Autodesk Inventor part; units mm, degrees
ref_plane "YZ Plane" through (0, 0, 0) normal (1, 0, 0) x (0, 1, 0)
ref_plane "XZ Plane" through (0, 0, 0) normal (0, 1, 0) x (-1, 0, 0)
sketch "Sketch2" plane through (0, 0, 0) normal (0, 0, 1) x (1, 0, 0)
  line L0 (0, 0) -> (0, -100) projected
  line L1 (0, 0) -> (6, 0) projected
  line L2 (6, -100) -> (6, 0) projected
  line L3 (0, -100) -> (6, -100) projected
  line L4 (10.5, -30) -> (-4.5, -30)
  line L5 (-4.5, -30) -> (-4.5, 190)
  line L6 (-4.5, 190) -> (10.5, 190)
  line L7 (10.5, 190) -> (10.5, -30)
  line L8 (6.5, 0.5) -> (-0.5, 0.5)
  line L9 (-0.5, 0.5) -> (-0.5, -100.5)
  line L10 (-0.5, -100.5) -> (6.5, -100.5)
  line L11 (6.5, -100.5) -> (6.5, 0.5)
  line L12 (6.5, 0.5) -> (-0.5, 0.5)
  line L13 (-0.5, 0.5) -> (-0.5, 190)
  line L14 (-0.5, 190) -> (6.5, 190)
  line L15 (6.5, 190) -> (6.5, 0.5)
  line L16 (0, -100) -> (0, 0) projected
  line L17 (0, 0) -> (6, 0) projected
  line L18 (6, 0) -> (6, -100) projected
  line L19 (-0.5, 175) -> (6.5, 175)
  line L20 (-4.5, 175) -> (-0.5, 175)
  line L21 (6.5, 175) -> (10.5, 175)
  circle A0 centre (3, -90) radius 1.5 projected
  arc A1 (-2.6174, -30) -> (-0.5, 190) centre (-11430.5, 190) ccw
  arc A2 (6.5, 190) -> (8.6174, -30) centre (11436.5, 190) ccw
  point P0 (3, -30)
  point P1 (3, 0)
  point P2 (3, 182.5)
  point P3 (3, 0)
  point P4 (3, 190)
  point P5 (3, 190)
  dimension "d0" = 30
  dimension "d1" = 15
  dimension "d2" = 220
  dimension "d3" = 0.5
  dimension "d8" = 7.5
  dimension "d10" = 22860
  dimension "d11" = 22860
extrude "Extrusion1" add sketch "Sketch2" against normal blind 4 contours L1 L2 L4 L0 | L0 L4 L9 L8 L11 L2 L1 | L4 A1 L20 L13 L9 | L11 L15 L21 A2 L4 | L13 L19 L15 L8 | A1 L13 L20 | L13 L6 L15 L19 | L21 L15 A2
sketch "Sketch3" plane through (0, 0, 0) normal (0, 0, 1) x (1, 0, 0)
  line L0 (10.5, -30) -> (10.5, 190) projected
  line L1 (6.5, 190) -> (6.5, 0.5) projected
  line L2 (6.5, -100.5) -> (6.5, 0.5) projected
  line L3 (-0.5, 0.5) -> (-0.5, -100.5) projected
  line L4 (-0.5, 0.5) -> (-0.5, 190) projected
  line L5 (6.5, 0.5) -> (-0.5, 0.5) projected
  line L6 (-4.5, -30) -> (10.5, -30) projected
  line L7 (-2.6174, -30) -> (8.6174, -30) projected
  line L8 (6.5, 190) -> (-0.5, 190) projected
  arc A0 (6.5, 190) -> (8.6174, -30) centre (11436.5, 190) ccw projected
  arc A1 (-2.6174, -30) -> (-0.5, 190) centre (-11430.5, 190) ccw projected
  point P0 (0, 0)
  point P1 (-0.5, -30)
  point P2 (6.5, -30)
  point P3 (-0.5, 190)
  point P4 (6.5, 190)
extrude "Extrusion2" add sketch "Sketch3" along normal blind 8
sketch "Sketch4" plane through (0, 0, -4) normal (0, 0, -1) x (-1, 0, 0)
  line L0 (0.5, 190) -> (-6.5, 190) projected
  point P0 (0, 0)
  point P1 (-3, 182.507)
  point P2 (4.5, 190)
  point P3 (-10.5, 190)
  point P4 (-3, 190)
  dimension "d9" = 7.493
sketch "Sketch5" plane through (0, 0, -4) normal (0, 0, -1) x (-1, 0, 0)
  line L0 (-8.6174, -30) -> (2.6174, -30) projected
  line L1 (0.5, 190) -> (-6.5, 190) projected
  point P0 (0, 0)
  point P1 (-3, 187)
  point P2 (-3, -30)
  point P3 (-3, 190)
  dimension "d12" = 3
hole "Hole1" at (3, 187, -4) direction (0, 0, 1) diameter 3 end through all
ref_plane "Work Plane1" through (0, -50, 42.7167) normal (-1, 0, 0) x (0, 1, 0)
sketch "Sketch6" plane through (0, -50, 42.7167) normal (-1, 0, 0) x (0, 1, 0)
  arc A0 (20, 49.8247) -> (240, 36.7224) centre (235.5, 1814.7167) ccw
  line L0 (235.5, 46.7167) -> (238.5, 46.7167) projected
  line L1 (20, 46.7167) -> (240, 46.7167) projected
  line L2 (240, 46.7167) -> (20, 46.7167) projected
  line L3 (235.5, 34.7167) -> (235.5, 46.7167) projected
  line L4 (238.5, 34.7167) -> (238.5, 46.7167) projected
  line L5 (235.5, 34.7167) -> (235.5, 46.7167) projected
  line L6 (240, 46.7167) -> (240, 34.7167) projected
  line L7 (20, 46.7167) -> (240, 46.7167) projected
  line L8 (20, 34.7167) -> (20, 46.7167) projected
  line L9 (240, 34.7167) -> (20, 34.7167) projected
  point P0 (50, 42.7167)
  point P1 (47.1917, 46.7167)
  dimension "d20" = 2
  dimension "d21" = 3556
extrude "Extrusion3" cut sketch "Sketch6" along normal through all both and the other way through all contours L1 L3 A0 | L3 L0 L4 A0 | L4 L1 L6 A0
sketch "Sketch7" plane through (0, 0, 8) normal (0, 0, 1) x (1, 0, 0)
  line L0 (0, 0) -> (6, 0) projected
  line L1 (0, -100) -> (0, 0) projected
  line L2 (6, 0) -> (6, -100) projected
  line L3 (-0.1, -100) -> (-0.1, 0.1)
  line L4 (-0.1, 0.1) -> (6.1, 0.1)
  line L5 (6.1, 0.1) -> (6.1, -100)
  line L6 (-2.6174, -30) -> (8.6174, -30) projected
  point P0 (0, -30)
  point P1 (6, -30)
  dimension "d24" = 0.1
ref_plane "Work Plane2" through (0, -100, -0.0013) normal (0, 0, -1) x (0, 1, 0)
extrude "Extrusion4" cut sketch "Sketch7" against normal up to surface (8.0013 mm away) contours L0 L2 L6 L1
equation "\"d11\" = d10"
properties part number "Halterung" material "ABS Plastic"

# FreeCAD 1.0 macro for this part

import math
import FreeCAD as App
import Part
import Sketcher
from FreeCAD import Vector

doc = App.newDocument("Part")
body = doc.addObject("PartDesign::Body", "Body")

# Sketch on XY plane
sketch1 = body.newObject("Sketcher::SketchObject", "Sketch")
sketch1.AttachmentSupport = (doc.getObject("XY_Plane"), [""])
sketch1.MapMode = "FlatFace"
sketch1.addGeometry([
    Part.ArcOfCircle(Part.Circle(Vector(11436.839745, 190.001635, 0), Vector(0, 0, 1), 11430.339745), math.radians(-179.999992), math.radians(-178.897151)),
    Part.LineSegment(Vector(6.5, 190, 0), Vector(-0.5, 190, 0)),
    Part.ArcOfCircle(Part.Circle(Vector(-11430.160306, 189.995096, 0), Vector(0, 0, 1), 11429.660306), math.radians(-1.102882), math.radians(0.000025)),
    Part.LineSegment(Vector(-2.6174, -30, 0), Vector(8.6174, -30, 0)),
], False)
sketch1.addConstraint([
    Sketcher.Constraint("Coincident", 0, 1, 1, 1),
    Sketcher.Constraint("Coincident", 1, 2, 2, 2),
    Sketcher.Constraint("Coincident", 2, 1, 3, 1),
    Sketcher.Constraint("Coincident", 3, 2, 0, 2),
    Sketcher.Constraint("Horizontal", 1),
    Sketcher.Constraint("Horizontal", 3),
    Sketcher.Constraint("DistanceY", 3, 2, -1, 1, 30.0),
    Sketcher.Constraint("DistanceY", 3, 2, 1, 2, 220.0),
    Sketcher.Constraint("DistanceX", 1, 2, -1, 1, 0.5),
    Sketcher.Constraint("DistanceX", 1, 2, 1, 1, 7.0),
    Sketcher.Constraint("DistanceX", 2, 3, 0, 3, 22867.0),
    Sketcher.Constraint("Radius", 0, 11430.3397),
    Sketcher.Constraint("DistanceX", 3, 1, 3, 2, 11.2348),
    Sketcher.Constraint("DistanceY", -1, 1, 2, 3, 189.995),
])
pad1 = body.newObject("PartDesign::Pad", "Pad")
pad1.Profile = sketch1
pad1.Length = 4
pad1.Reversed = True

# Sketch on XY plane
sketch2 = body.newObject("Sketcher::SketchObject", "Sketch001")
sketch2.AttachmentSupport = (doc.getObject("XY_Plane"), [""])
sketch2.MapMode = "FlatFace"
sketch2.addGeometry([
    Part.ArcOfCircle(Part.Circle(Vector(11436.839745, 190.001635, 0), Vector(0, 0, 1), 11430.339745), math.radians(-179.999992), math.radians(-178.897151)),
    Part.LineSegment(Vector(6.5, 190, 0), Vector(-0.5, 190, 0)),
    Part.ArcOfCircle(Part.Circle(Vector(-11430.160306, 189.995096, 0), Vector(0, 0, 1), 11429.660306), math.radians(-1.102882), math.radians(0.000025)),
    Part.LineSegment(Vector(-2.6174, -30, 0), Vector(8.6174, -30, 0)),
], False)
sketch2.addConstraint([
    Sketcher.Constraint("Coincident", 0, 1, 1, 1),
    Sketcher.Constraint("Coincident", 1, 2, 2, 2),
    Sketcher.Constraint("Coincident", 2, 1, 3, 1),
    Sketcher.Constraint("Coincident", 3, 2, 0, 2),
    Sketcher.Constraint("Horizontal", 1),
    Sketcher.Constraint("Horizontal", 3),
    Sketcher.Constraint("DistanceX", 1, 2, 1, 1, 7.0),
    Sketcher.Constraint("DistanceY", -1, 1, 1, 2, 190.0),
    Sketcher.Constraint("DistanceY", 3, 2, -1, 1, 30.0),
    Sketcher.Constraint("DistanceX", 2, 3, 0, 3, 22867.0),
    Sketcher.Constraint("DistanceX", -1, 1, 0, 1, 6.5),
    Sketcher.Constraint("Radius", 0, 11430.3397),
    Sketcher.Constraint("DistanceX", 3, 1, 3, 2, 11.2348),
    Sketcher.Constraint("DistanceY", -1, 1, 2, 3, 189.995),
])
pad2 = body.newObject("PartDesign::Pad", "Pad001")
pad2.Profile = sketch2
pad2.Length = 8

# Sketch on XY plane
sketch3 = body.newObject("Sketcher::SketchObject", "Sketch002")
sketch3.AttachmentSupport = (doc.getObject("XY_Plane"), [""])
sketch3.MapMode = "FlatFace"
sketch3.AttachmentOffset = App.Placement(Vector(0, 0, -4), App.Rotation())
sketch3.addGeometry(Part.Circle(Vector(3, 187, 0), Vector(0, 0, 1), 1.5), False)
sketch3.addConstraint([
    Sketcher.Constraint("Diameter", 0, 3.0),
    Sketcher.Constraint("DistanceX", -1, 1, 0, 3, 3.0),
    Sketcher.Constraint("DistanceY", -1, 1, 0, 3, 187.0),
])
doc.recompute()
hole = body.newObject("PartDesign::Hole", "Hole")
hole.Profile = sketch3
hole.ThreadType = "None"
hole.Diameter = 3
hole.DepthType = "ThroughAll"
hole.Reversed = True

# Sketch on YZ plane
sketch4 = body.newObject("Sketcher::SketchObject", "Sketch003")
sketch4.AttachmentSupport = (doc.getObject("YZ_Plane"), [""])
sketch4.MapMode = "FlatFace"
sketch4.addGeometry([
    Part.ArcOfCircle(Part.Circle(Vector(185.49973, -1771.997024, 0), Vector(0, 0, 1), 1777.99702), math.radians(89.854979), math.radians(96.079611)),
    Part.LineSegment(Vector(190, 5.9943, 0), Vector(190, -4, 0)),
    Part.LineSegment(Vector(190, -4, 0), Vector(-2.808326, -4, 0)),
], False)
sketch4.addConstraint([
    Sketcher.Constraint("Coincident", 0, 1, 1, 1),
    Sketcher.Constraint("Coincident", 1, 2, 2, 1),
    Sketcher.Constraint("Coincident", 2, 2, 0, 2),
    Sketcher.Constraint("Vertical", 1),
    Sketcher.Constraint("Horizontal", 2),
    Sketcher.Constraint("DistanceX", -1, 1, 1, 2, 190.0),
    Sketcher.Constraint("DistanceY", 1, 2, -1, 1, 4.0),
    Sketcher.Constraint("Radius", 0, 1777.997),
    Sketcher.Constraint("DistanceX", 2, 2, 2, 1, 192.8083),
    Sketcher.Constraint("DistanceY", 1, 2, 1, 1, 9.9943),
])
pocket1 = body.newObject("PartDesign::Pocket", "Pocket")
pocket1.Profile = sketch4
pocket1.Type = "ThroughAll"
pocket1.Midplane = True

# Sketch on XY plane
sketch5 = body.newObject("Sketcher::SketchObject", "Sketch004")
sketch5.AttachmentSupport = (doc.getObject("XY_Plane"), [""])
sketch5.MapMode = "FlatFace"
sketch5.AttachmentOffset = App.Placement(Vector(0, 0, 8), App.Rotation())
sketch5.addGeometry([
    Part.LineSegment(Vector(6, 0, 0), Vector(0, 0, 0)),
    Part.LineSegment(Vector(0, 0, 0), Vector(0, -30, 0)),
    Part.LineSegment(Vector(0, -30, 0), Vector(6, -30, 0)),
    Part.LineSegment(Vector(6, -30, 0), Vector(6, 0, 0)),
], False)
sketch5.addConstraint([
    Sketcher.Constraint("Coincident", 0, 2, 1, 1),
    Sketcher.Constraint("Coincident", 1, 2, 2, 1),
    Sketcher.Constraint("Coincident", 2, 2, 3, 1),
    Sketcher.Constraint("Coincident", 3, 2, 0, 1),
    Sketcher.Constraint("Horizontal", 0),
    Sketcher.Constraint("Vertical", 1),
    Sketcher.Constraint("Horizontal", 2),
    Sketcher.Constraint("Vertical", 3),
    Sketcher.Constraint("Coincident", 0, 2, -1, 1),
    Sketcher.Constraint("DistanceX", 0, 2, 0, 1, 6.0),
    Sketcher.Constraint("DistanceY", 1, 2, 1, 1, 30.0),
])
pocket2 = body.newObject("PartDesign::Pocket", "Pocket001")
pocket2.Profile = sketch5
pocket2.Length = 8.0013

doc.recompute()
